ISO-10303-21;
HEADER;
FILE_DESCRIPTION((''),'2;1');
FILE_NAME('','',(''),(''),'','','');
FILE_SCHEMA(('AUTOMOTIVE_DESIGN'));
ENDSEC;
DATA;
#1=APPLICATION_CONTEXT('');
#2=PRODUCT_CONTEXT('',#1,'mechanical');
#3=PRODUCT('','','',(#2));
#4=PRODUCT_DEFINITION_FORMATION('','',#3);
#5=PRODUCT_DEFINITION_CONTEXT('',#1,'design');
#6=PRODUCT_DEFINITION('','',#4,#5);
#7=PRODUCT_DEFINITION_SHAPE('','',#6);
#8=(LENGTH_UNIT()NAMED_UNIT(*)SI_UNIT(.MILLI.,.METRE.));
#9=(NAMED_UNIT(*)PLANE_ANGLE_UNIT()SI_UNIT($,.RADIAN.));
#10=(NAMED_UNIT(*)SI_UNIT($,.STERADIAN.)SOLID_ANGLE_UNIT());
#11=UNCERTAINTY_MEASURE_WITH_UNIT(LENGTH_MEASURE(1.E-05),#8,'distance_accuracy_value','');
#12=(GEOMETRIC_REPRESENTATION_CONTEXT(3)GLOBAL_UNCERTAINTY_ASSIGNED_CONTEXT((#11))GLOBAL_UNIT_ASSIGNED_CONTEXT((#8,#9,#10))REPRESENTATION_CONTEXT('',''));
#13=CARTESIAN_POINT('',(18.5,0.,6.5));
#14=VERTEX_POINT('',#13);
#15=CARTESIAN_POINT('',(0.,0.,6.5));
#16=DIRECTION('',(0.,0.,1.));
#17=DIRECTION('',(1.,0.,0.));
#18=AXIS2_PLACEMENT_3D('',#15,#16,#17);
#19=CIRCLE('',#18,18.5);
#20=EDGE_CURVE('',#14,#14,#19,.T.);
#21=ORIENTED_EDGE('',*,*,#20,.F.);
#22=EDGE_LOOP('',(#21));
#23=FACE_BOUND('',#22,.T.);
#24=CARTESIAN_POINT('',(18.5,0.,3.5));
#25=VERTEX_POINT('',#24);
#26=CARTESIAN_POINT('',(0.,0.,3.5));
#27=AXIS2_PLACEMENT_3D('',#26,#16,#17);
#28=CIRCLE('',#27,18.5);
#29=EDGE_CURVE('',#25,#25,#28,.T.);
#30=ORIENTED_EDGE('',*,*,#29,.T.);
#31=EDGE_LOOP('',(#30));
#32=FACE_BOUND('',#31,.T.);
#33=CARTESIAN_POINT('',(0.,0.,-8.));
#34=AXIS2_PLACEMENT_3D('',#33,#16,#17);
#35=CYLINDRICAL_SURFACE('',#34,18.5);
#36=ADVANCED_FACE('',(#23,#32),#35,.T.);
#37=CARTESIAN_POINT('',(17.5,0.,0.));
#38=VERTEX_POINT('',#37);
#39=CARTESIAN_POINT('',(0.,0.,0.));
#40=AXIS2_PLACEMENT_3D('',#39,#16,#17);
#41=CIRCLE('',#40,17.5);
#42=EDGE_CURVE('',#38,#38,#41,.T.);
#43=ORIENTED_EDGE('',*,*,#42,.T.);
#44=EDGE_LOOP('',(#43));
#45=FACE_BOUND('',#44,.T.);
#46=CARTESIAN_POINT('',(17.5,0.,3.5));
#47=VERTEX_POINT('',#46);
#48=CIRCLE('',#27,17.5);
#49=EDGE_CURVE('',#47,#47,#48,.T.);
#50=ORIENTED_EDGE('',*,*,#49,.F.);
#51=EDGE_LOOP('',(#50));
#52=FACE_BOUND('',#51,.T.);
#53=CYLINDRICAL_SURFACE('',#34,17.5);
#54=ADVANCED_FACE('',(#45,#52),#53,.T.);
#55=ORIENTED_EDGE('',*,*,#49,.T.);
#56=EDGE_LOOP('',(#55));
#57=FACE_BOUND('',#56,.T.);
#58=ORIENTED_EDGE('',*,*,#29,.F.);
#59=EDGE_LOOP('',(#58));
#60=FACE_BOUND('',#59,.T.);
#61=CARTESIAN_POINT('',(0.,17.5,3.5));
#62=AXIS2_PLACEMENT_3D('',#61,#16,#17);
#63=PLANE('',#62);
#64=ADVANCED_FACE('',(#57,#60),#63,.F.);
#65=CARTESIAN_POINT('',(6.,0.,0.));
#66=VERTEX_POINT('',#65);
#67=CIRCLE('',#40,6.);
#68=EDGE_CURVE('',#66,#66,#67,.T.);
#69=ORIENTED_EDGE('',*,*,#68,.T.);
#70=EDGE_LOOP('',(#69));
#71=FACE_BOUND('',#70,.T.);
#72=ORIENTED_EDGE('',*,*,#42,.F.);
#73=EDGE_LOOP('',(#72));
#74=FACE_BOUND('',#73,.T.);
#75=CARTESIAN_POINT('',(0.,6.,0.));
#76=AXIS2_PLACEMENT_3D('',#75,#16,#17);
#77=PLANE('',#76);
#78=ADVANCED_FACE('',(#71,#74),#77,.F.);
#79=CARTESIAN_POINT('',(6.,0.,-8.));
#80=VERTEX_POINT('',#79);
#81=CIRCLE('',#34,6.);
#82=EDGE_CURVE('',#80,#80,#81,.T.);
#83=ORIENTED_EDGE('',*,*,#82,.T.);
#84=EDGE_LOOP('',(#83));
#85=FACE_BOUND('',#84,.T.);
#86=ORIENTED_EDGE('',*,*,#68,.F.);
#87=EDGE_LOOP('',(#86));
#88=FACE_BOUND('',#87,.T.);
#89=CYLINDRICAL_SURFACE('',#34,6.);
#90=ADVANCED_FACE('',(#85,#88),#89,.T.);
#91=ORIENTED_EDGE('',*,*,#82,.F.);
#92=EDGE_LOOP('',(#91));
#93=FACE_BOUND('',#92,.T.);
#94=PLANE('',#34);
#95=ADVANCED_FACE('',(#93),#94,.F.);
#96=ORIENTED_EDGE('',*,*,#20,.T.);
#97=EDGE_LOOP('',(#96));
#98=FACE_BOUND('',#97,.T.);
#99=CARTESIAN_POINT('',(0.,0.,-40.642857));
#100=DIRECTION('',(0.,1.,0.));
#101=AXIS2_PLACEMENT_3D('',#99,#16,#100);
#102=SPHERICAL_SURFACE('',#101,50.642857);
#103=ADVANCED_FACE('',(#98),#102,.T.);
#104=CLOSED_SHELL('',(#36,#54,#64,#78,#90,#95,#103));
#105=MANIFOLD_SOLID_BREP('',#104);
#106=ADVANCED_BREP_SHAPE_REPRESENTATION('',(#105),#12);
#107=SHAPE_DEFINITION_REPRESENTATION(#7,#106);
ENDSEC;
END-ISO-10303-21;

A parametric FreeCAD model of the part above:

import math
import FreeCAD as App
import Part
import Sketcher
Q = App.Units.Quantity

doc = App.newDocument("Part")
body = doc.addObject("PartDesign::Body", "Body")

# Sketch on YZ plane
sketch1 = doc.addObject("Sketcher::SketchObject", "Sketch")
body.addObject(sketch1)
sketch1.AttachmentSupport = (doc.YZ_Plane, [""])
sketch1.MapMode = "FlatFace"
sketch1.addGeometry([
    Part.LineSegment(App.Vector(0, -8, 0), App.Vector(6, -8, 0)),  # 0
    Part.LineSegment(App.Vector(6, -8, 0), App.Vector(6, 0, 0)),  # 1
    Part.LineSegment(App.Vector(6, 0, 0), App.Vector(17.5, 0, 0)),  # 2
    Part.LineSegment(App.Vector(17.5, 0, 0), App.Vector(17.5, 3.5, 0)),  # 3
    Part.LineSegment(App.Vector(17.5, 3.5, 0), App.Vector(18.5, 3.5, 0)),  # 4
    Part.LineSegment(App.Vector(18.5, 3.5, 0), App.Vector(18.5, 6.5, 0)),  # 5
    Part.ArcOfCircle(Part.Circle(App.Vector(0, -40.642857, 0), App.Vector(0, 0, 1), 50.642857), math.radians(68.573754), math.radians(90)),  # 6
    Part.LineSegment(App.Vector(0, 10, 0), App.Vector(0, -8, 0)),  # 7
], False)
sketch1.addConstraint([
    Sketcher.Constraint("Coincident", 0, 2, 1, 1),
    Sketcher.Constraint("Coincident", 1, 2, 2, 1),
    Sketcher.Constraint("Coincident", 2, 2, 3, 1),
    Sketcher.Constraint("Coincident", 3, 2, 4, 1),
    Sketcher.Constraint("Coincident", 4, 2, 5, 1),
    Sketcher.Constraint("Coincident", 5, 2, 6, 1),
    Sketcher.Constraint("Coincident", 6, 2, 7, 1),
    Sketcher.Constraint("Coincident", 7, 2, 0, 1),
    Sketcher.Constraint("Horizontal", 0),
    Sketcher.Constraint("Vertical", 1),
    Sketcher.Constraint("Horizontal", 2),
    Sketcher.Constraint("Vertical", 3),
    Sketcher.Constraint("Horizontal", 4),
    Sketcher.Constraint("Vertical", 5),
    Sketcher.Constraint("Vertical", 7),
    Sketcher.Constraint("PointOnObject", 6, 3, -2),
    Sketcher.Constraint("PointOnObject", 1, 2, -1),
    Sketcher.Constraint("PointOnObject", 6, 2, -2),
    Sketcher.Constraint("DistanceX", 0, 1, 0, 2, Q("6 mm")),
    Sketcher.Constraint("DistanceX", 4, 1, 4, 2, Q("1 mm")),
    Sketcher.Constraint("DistanceY", 1, 1, 1, 2, Q("8 mm")),
    Sketcher.Constraint("DistanceY", 5, 1, 5, 2, Q("3 mm")),
    Sketcher.Constraint("DistanceY", 7, 2, 7, 1, Q("18 mm")),
    Sketcher.Constraint("DistanceX", 2, 1, 2, 2, Q("11.5 mm")),
    Sketcher.Constraint("DistanceY", 3, 1, 3, 2, Q("3.5 mm")),
])
revolution = doc.addObject("PartDesign::Revolution", "Revolution")
body.addObject(revolution)
revolution.Profile = sketch1
revolution.ReferenceAxis = (sketch1, ["V_Axis"])
revolution.Angle = 360

doc.recompute()
